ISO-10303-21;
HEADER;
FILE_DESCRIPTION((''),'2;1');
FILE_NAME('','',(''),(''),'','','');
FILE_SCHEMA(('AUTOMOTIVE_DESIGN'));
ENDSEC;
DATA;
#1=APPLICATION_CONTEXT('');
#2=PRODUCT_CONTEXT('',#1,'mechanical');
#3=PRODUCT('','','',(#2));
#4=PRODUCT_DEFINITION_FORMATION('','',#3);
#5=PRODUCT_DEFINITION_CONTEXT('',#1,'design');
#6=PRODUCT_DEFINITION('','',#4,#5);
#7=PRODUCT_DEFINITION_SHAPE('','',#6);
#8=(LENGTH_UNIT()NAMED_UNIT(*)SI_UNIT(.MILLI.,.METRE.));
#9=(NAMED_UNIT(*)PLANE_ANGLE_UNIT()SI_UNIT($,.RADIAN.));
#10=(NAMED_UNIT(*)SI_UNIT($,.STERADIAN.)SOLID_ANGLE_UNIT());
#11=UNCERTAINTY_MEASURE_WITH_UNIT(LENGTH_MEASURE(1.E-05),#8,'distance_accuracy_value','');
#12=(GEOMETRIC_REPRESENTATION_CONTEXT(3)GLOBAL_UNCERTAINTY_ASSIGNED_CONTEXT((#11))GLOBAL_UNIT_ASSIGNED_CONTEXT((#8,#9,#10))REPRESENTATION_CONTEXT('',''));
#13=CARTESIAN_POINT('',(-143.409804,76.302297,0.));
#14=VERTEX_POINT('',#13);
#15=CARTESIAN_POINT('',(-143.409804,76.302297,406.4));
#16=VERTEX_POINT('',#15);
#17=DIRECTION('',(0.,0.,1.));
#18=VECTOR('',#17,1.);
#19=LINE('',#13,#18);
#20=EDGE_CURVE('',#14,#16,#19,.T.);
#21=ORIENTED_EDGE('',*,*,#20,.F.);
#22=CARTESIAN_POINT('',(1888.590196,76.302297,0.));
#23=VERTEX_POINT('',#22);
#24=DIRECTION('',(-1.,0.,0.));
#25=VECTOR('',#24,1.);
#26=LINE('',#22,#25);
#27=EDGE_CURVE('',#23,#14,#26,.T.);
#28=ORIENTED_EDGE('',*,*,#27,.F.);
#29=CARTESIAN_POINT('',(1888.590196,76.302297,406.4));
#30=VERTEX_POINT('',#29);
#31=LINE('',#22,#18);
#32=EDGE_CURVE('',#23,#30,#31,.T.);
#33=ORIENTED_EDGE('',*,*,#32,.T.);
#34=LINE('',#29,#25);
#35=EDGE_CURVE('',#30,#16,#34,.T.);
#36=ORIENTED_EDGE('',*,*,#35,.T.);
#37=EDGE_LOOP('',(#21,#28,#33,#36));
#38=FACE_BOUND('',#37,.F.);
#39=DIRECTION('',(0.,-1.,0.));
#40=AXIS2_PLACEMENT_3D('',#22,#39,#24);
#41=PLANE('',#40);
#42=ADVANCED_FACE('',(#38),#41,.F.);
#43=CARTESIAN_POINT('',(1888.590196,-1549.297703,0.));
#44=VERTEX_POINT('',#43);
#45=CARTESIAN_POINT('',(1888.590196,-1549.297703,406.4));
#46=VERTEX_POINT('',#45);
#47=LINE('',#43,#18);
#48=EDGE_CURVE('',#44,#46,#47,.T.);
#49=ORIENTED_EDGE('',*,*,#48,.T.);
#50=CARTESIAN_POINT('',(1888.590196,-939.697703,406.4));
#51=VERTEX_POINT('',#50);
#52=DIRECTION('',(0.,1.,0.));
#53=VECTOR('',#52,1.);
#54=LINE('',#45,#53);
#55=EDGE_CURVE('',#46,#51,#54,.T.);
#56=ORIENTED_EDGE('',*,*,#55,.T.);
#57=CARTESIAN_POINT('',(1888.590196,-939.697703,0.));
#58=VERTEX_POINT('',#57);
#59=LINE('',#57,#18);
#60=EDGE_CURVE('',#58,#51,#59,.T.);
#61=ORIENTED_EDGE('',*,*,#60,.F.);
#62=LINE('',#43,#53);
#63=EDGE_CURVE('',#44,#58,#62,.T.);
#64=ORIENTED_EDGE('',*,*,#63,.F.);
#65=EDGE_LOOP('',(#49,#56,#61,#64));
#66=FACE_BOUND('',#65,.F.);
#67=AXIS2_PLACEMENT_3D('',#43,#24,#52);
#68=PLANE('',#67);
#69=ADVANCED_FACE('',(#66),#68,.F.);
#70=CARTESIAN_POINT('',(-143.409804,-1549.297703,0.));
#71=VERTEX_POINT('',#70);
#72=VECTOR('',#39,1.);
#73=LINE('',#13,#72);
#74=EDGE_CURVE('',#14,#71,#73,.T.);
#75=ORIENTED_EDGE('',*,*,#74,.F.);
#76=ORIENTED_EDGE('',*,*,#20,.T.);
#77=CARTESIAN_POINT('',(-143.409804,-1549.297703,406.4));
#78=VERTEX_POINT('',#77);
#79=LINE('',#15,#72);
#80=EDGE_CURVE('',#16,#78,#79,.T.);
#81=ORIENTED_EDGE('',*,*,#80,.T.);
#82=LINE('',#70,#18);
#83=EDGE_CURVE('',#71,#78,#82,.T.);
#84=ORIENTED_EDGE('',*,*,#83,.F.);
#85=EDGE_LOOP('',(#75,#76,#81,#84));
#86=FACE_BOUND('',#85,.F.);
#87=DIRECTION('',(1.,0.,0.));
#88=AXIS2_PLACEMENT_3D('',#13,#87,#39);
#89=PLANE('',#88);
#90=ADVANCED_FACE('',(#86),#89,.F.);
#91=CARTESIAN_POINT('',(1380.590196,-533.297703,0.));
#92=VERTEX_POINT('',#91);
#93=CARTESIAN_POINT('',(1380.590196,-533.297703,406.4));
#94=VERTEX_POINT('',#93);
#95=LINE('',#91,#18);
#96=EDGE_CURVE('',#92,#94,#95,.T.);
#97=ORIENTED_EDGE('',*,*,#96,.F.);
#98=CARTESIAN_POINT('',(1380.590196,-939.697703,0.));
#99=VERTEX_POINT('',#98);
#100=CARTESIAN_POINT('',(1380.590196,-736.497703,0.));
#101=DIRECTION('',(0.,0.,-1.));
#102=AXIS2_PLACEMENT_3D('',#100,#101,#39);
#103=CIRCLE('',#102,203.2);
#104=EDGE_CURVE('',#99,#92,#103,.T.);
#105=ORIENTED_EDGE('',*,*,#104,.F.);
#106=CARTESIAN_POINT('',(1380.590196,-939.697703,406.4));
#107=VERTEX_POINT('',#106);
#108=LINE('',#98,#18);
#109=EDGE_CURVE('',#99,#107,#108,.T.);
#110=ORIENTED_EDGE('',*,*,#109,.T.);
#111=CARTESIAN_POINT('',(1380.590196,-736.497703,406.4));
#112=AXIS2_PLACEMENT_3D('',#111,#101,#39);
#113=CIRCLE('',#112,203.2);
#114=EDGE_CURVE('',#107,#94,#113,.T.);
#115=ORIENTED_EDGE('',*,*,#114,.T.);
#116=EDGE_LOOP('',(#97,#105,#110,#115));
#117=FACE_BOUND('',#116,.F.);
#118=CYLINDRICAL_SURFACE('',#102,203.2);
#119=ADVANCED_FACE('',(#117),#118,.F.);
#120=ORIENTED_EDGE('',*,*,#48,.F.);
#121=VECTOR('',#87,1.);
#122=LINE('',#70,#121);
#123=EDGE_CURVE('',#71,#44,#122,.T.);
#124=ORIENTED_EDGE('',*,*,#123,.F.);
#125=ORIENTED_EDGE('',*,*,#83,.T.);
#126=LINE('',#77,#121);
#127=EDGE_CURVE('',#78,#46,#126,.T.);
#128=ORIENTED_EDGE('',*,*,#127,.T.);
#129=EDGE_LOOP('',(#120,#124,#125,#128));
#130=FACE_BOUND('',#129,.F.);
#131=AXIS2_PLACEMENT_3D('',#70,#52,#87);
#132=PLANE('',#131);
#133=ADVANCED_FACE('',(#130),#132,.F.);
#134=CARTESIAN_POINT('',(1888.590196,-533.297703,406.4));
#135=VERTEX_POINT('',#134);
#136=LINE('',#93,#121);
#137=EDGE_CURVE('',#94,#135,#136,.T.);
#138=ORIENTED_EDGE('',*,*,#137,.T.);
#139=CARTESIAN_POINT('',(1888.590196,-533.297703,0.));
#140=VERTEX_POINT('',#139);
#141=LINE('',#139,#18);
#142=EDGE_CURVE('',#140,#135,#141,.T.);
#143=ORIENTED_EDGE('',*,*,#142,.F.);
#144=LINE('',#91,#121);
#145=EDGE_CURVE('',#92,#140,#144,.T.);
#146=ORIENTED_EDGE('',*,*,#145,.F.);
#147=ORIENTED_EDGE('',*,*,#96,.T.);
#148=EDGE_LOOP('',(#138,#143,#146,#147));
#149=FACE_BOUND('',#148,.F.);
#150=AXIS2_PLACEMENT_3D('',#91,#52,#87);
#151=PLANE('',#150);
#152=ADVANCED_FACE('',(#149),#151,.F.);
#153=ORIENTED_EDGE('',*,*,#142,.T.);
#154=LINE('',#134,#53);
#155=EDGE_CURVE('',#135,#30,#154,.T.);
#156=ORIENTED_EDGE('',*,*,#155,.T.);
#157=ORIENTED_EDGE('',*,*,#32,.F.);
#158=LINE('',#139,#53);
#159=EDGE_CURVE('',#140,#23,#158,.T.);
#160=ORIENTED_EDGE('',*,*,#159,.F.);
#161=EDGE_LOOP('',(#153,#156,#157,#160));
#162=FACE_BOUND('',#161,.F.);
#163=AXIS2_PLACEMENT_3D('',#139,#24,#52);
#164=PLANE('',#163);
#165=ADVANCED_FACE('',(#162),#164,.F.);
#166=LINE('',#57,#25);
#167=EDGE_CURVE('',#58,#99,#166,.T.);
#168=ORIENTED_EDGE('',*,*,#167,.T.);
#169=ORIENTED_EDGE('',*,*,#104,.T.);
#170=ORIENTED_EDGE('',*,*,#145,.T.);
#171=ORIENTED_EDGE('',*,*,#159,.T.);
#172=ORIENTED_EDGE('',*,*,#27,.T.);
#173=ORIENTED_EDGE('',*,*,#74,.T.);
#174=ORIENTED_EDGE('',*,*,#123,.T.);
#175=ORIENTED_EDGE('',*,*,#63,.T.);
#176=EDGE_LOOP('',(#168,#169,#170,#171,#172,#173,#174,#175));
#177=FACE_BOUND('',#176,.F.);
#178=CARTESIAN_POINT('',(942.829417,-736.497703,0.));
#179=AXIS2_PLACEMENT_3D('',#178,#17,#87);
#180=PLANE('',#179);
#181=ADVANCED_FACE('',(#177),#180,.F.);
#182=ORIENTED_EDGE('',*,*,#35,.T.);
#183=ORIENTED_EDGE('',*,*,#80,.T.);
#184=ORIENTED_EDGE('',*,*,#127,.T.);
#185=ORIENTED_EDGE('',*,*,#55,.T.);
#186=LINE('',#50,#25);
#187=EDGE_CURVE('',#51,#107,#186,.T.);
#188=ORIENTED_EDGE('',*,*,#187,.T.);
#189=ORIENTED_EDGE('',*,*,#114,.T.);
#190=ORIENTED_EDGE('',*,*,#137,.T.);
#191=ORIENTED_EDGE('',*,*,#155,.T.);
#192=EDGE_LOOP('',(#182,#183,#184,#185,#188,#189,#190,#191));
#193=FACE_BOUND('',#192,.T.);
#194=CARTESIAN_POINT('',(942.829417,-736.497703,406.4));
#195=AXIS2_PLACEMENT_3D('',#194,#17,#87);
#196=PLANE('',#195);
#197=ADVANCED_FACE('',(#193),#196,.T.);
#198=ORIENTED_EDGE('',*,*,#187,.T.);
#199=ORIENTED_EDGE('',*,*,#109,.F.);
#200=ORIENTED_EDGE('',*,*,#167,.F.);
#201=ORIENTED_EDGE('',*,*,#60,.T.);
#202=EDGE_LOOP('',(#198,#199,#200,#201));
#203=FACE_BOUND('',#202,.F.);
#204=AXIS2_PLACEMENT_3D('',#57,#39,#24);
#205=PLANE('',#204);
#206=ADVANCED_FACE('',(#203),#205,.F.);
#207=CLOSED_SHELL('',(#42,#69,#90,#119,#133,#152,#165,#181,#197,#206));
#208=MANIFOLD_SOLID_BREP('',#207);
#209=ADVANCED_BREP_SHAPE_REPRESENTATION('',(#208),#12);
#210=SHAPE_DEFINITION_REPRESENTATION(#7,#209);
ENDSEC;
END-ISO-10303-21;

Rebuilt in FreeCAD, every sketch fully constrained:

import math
import FreeCAD as App
import Part
import Sketcher

V = App.Vector
Q = App.Units.Quantity

doc = App.newDocument("Part")
body = doc.addObject("PartDesign::Body", "Body")

sketch1 = body.newObject("Sketcher::SketchObject", "Sketch")
sketch1.AttachmentSupport = (doc.getObject("XY_Plane"), [""])
sketch1.MapMode = "FlatFace"
sketch1.addGeometry(Part.LineSegment(V(1889, 76, 0), V(-143, 76, 0)), False)
sketch1.addGeometry(Part.LineSegment(V(-143, 76, 0), V(-143, -1549, 0)), False)
sketch1.addGeometry(Part.LineSegment(V(-143, -1549, 0), V(1889, -1549, 0)), False)
sketch1.addGeometry(Part.LineSegment(V(1889, -1549, 0), V(1889, -940, 0)), False)
sketch1.addGeometry(Part.LineSegment(V(1889, -940, 0), V(1381, -940, 0)), False)
sketch1.addGeometry(Part.ArcOfCircle(Part.Circle(V(1381, -736, 0), V(0, 0, 1), 203), math.radians(90), math.radians(270)), False)
sketch1.addGeometry(Part.LineSegment(V(1381, -533, 0), V(1889, -533, 0)), False)
sketch1.addGeometry(Part.LineSegment(V(1889, -533, 0), V(1889, 76, 0)), False)
sketch1.addConstraint(Sketcher.Constraint("Coincident", 0, 2, 1, 1))
sketch1.addConstraint(Sketcher.Constraint("Coincident", 1, 2, 2, 1))
sketch1.addConstraint(Sketcher.Constraint("Coincident", 2, 2, 3, 1))
sketch1.addConstraint(Sketcher.Constraint("Coincident", 3, 2, 4, 1))
sketch1.addConstraint(Sketcher.Constraint("Tangent", 4, 2, 5, 2))
sketch1.addConstraint(Sketcher.Constraint("Tangent", 5, 1, 6, 1))
sketch1.addConstraint(Sketcher.Constraint("Coincident", 6, 2, 7, 1))
sketch1.addConstraint(Sketcher.Constraint("Coincident", 7, 2, 0, 1))
sketch1.addConstraint(Sketcher.Constraint("Horizontal", 0))
sketch1.addConstraint(Sketcher.Constraint("Vertical", 1))
sketch1.addConstraint(Sketcher.Constraint("Horizontal", 2))
sketch1.addConstraint(Sketcher.Constraint("Vertical", 3))
sketch1.addConstraint(Sketcher.Constraint("Horizontal", 4))
sketch1.addConstraint(Sketcher.Constraint("Horizontal", 6))
sketch1.addConstraint(Sketcher.Constraint("Vertical", 7))
sketch1.addConstraint(Sketcher.Constraint("Vertical", 3, 2, 6, 2))
sketch1.addConstraint(Sketcher.Constraint("Equal", 3, 7))
sketch1.addConstraint(Sketcher.Constraint("Radius", 5, Q("8 in")))
sketch1.addConstraint(Sketcher.Constraint("DistanceX", 0, 2, 0, 1, Q("80 in")))
sketch1.addConstraint(Sketcher.Constraint("DistanceX", 4, 2, 4, 1, Q("20 in")))
sketch1.addConstraint(Sketcher.Constraint("DistanceY", 1, 2, 1, 1, Q("64 in")))
sketch1.addConstraint(Sketcher.Constraint("DistanceX", -1, 1, 5, 3, 1380.590196))
sketch1.addConstraint(Sketcher.Constraint("DistanceY", 5, 3, -1, 1, 736.497703))
pad1 = body.newObject("PartDesign::Pad", "Pad")
pad1.Profile = sketch1
pad1.Length = Q("16 in")

doc.recompute()
